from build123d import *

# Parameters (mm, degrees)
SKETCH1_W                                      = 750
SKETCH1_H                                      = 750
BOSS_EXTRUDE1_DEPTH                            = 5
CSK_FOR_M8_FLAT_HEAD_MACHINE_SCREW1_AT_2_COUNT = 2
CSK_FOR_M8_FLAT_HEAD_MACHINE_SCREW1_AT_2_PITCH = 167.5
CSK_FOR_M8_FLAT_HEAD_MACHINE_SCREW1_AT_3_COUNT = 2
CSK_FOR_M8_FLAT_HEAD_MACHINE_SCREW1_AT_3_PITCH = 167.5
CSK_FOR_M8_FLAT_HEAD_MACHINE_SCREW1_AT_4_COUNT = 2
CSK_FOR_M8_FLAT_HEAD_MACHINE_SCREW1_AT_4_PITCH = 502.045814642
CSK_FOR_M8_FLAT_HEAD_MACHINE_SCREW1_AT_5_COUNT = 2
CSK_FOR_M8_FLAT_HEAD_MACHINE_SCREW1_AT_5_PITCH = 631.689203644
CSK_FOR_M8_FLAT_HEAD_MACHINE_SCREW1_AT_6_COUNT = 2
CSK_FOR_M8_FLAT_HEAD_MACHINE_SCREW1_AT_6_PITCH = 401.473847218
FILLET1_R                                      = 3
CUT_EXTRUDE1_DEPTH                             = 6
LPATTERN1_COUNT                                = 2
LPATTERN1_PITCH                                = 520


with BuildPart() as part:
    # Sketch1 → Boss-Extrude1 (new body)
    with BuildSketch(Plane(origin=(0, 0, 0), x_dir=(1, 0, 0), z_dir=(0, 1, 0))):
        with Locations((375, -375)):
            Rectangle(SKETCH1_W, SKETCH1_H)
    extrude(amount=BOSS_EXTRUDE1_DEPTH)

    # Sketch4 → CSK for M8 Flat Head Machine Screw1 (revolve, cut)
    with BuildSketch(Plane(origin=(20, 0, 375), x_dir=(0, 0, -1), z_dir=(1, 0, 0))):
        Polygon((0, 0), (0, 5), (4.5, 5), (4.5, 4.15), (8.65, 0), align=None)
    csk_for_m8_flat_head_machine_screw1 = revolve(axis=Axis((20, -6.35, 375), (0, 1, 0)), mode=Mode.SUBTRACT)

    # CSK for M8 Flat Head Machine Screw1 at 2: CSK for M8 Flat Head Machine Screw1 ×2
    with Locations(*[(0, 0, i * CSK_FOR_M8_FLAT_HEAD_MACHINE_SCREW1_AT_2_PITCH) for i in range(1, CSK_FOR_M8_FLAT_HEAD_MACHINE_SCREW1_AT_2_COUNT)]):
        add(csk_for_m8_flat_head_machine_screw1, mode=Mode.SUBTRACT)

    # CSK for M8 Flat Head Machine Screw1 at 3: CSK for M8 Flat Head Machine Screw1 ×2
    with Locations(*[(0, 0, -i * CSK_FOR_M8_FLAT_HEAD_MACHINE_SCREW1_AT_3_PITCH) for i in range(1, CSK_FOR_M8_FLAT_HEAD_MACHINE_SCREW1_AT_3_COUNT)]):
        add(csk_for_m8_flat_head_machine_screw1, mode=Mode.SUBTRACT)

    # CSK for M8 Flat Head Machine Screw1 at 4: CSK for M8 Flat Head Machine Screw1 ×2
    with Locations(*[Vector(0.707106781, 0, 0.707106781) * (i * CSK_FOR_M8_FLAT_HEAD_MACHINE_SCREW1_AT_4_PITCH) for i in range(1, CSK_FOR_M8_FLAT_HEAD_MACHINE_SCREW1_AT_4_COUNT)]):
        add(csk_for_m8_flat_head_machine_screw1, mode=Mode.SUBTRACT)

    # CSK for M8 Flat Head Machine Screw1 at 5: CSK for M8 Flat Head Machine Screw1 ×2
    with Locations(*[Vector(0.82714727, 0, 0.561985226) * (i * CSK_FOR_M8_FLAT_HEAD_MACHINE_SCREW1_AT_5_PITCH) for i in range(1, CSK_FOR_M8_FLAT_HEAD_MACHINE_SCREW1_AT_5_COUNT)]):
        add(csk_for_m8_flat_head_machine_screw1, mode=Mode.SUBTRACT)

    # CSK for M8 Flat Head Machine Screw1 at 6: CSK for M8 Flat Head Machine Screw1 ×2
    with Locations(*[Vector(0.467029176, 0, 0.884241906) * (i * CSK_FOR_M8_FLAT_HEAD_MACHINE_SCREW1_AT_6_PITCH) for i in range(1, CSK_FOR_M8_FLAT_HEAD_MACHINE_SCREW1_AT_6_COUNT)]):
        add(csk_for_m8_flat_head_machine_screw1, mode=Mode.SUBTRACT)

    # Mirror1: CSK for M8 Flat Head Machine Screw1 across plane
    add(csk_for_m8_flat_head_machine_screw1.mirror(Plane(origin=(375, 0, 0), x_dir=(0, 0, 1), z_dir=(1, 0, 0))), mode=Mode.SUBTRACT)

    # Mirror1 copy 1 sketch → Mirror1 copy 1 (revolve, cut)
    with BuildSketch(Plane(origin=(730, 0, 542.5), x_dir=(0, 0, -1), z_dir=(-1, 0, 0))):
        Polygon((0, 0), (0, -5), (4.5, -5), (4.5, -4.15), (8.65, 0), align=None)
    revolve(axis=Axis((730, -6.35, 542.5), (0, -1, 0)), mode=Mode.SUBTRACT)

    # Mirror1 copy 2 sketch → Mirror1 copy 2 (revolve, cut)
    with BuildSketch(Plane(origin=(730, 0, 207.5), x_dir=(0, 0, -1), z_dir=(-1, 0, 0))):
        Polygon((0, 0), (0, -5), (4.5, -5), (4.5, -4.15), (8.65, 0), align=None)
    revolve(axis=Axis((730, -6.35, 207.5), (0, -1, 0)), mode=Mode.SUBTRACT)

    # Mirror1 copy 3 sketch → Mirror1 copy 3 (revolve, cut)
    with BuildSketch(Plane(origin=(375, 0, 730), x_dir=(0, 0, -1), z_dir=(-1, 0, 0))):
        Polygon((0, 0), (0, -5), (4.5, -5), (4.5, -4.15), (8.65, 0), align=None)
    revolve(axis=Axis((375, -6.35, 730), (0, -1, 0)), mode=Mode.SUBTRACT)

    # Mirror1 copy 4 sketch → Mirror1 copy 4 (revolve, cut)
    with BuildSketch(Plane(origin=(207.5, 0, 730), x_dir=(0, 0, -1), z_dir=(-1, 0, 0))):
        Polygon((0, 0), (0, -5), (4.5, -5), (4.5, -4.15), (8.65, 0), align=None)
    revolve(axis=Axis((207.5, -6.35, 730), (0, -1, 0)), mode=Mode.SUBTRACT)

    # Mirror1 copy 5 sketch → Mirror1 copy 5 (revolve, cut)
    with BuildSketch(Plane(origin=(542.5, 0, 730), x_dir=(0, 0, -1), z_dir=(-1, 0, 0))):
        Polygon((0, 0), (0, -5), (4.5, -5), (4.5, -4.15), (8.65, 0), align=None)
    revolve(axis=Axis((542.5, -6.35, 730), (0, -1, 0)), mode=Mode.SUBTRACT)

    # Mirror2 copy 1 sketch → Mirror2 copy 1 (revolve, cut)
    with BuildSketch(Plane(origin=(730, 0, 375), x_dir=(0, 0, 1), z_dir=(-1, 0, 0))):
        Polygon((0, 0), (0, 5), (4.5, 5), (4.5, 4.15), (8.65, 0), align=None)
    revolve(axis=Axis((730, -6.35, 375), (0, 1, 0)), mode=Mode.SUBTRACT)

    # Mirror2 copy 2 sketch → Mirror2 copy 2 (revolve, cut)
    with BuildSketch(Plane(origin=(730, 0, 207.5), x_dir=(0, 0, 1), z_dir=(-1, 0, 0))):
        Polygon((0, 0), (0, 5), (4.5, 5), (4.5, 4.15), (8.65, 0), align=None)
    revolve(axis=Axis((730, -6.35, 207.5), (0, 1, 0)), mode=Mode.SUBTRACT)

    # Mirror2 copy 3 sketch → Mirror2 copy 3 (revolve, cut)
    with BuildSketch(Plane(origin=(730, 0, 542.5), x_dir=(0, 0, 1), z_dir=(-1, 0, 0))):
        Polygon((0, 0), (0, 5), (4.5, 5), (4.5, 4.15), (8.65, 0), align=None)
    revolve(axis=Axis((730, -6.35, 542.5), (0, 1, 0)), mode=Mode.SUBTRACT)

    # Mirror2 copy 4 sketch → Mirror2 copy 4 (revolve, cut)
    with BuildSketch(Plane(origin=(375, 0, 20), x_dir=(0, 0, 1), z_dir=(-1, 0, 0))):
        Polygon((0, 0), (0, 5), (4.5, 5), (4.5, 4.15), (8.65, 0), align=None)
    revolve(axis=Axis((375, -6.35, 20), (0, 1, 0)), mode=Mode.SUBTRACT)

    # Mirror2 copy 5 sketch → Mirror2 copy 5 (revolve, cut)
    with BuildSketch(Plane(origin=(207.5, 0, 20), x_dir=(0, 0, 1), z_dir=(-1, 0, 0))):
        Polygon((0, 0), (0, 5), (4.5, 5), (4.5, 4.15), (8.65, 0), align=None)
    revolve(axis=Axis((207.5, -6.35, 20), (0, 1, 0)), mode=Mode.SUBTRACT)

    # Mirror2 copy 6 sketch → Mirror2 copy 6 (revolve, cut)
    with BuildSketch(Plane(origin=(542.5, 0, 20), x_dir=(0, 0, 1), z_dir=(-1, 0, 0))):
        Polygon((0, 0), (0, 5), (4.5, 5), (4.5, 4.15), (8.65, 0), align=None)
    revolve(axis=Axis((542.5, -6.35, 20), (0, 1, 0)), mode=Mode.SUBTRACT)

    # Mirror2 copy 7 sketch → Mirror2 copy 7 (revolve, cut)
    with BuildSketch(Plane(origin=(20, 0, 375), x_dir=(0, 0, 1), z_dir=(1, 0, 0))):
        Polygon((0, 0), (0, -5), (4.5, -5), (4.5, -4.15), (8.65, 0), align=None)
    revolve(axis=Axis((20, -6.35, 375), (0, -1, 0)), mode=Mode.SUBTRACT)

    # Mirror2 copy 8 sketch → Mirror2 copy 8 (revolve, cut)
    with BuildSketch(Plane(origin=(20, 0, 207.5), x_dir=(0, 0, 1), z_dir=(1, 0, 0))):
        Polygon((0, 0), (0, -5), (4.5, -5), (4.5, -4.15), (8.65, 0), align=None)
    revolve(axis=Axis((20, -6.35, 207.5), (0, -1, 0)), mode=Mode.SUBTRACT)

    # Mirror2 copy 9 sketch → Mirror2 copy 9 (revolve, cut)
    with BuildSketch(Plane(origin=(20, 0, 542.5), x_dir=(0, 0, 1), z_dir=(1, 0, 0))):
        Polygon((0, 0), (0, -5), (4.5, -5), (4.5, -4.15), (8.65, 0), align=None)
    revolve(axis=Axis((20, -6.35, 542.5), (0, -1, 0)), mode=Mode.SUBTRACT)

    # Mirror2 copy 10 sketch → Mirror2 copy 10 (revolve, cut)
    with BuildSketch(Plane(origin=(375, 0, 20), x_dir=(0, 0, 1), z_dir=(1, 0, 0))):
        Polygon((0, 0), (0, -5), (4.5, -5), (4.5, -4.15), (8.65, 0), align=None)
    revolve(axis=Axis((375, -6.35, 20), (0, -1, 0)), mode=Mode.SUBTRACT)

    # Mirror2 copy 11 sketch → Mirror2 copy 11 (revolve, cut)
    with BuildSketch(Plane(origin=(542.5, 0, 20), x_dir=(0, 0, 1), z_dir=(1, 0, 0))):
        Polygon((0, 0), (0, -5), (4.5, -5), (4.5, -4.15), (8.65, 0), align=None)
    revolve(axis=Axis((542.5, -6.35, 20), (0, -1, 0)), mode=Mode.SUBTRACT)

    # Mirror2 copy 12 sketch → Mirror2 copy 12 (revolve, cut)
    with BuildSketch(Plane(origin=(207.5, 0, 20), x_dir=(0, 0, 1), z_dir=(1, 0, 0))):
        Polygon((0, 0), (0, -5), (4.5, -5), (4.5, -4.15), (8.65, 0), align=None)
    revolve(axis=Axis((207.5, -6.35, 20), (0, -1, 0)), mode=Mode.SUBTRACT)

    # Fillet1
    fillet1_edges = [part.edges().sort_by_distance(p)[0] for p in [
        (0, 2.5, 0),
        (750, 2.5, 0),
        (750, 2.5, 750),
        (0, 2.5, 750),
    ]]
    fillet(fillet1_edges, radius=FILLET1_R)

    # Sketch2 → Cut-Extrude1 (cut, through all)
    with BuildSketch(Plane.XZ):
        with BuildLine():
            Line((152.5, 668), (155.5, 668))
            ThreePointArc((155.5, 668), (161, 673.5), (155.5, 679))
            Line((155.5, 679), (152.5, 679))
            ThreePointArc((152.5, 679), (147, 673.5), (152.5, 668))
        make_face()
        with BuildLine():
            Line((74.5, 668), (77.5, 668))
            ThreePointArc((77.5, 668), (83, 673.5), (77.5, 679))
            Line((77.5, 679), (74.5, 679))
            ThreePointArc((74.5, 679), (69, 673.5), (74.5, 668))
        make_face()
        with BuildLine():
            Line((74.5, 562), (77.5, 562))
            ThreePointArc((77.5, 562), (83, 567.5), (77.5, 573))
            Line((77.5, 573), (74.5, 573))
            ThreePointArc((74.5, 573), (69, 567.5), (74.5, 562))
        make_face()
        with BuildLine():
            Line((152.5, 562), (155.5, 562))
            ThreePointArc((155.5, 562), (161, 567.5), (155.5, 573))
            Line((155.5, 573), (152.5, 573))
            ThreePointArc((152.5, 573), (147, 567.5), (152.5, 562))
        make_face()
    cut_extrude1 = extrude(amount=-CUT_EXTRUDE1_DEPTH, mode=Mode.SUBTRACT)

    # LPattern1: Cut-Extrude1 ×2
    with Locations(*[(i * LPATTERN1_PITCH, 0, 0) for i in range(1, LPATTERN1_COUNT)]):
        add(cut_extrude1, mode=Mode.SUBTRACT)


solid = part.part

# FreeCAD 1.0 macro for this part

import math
import FreeCAD as App
import Part
import Sketcher
Q = App.Units.Quantity


def edges_at(feature, points):
    """Names of the edges that pass closest to the given points."""
    edges = feature.Shape.Edges
    near = lambda p: min(range(len(edges)), key=lambda i: edges[i].distToShape(Part.Vertex(*p))[0])
    return sorted({f"Edge{near(p) + 1}" for p in points})


def add_polygon(sketch, points):
    """Adds a closed chain of lines whose ends are joined by coincident constraints."""
    first, n = sketch.GeometryCount, len(points)
    for a, b in zip(points, points[1:] + points[:1]):
        sketch.addGeometry(Part.LineSegment(App.Vector(*a, 0), App.Vector(*b, 0)), False)
    for i in range(n):
        sketch.addConstraint(Sketcher.Constraint("Coincident", first + i, 2, first + (i + 1) % n, 1))

doc = App.newDocument("Part")
body = doc.addObject("PartDesign::Body", "Body")

# Sketch on XZ plane
sketch1 = doc.addObject("Sketcher::SketchObject", "Sketch")
body.addObject(sketch1)
sketch1.AttachmentSupport = (doc.XZ_Plane, [""])
sketch1.MapMode = "FlatFace"
add_polygon(sketch1, [(0, 0), (0, 750), (750, 750), (750, 0)])  # lines 0-3
sketch1.addConstraint([
    Sketcher.Constraint("Vertical", 0),
    Sketcher.Constraint("Horizontal", 1),
    Sketcher.Constraint("Vertical", 2),
    Sketcher.Constraint("Horizontal", 3),
    Sketcher.Constraint("Coincident", 3, 2, -1, 1),
    Sketcher.Constraint("Equal", 3, 0),
    Sketcher.Constraint("DistanceX", 1, 1, 1, 2, 750.0),
])
pad1 = doc.addObject("PartDesign::Pad", "Pad")
body.addObject(pad1)
pad1.Profile = sketch1
pad1.Length = 5
pad1.Reversed = True

# Sketch on YZ plane
sketch2 = doc.addObject("Sketcher::SketchObject", "Sketch001")
body.addObject(sketch2)
sketch2.AttachmentSupport = (doc.YZ_Plane, [""])
sketch2.MapMode = "FlatFace"
sketch2.AttachmentOffset = App.Placement(App.Vector(0, 0, 20), App.Rotation())
add_polygon(sketch2, [(5, 375), (0, 375), (0, 366.4), (4.2, 370.5), (5, 370.5)])  # lines 0-4
sketch2.addGeometry(Part.LineSegment(App.Vector(0, 375, 0), App.Vector(5, 375, 0)), True)  # axis
sketch2.addConstraint([
    Sketcher.Constraint("Horizontal", 0),
    Sketcher.Constraint("Vertical", 1),
    Sketcher.Constraint("Horizontal", 3),
    Sketcher.Constraint("Vertical", 4),
    Sketcher.Constraint("Horizontal", 5),
    Sketcher.Constraint("Coincident", 5, 1, 0, 2),
    Sketcher.Constraint("PointOnObject", 0, 2, -2),
    Sketcher.Constraint("Vertical", 3, 2, 5, 2),
    Sketcher.Constraint("DistanceX", 0, 2, 0, 1, 5.0),
    Sketcher.Constraint("Angle", 2, Q("45 deg")),
    Sketcher.Constraint("DistanceY", 4, 1, 4, 2, 4.5),
    Sketcher.Constraint("DistanceY", -1, 1, 0, 2, 375.0),
    Sketcher.Constraint("DistanceX", 3, 1, 3, 2, 0.85),
])
groove = doc.addObject("PartDesign::Groove", "Groove")
body.addObject(groove)
groove.Profile = sketch2
groove.ReferenceAxis = (sketch2, ["Axis0"])
groove.Angle = 360
doc.recompute()

linearpattern = doc.addObject("PartDesign::LinearPattern", "LinearPattern")
body.addObject(linearpattern)
linearpattern.Originals = [groove]
linearpattern.Direction = (doc.Z_Axis, [""])
linearpattern.Mode = "offset"
linearpattern.Offset = 167.5
linearpattern.Occurrences = 2
body.Tip = linearpattern
doc.recompute()

linearpattern2 = doc.addObject("PartDesign::LinearPattern", "LinearPattern001")
body.addObject(linearpattern2)
linearpattern2.Originals = [groove]
linearpattern2.Direction = (doc.Z_Axis, [""])
linearpattern2.Mode = "offset"
linearpattern2.Offset = 167.5
linearpattern2.Occurrences = 2
linearpattern2.Reversed = True
body.Tip = linearpattern2
doc.recompute()

datumline = doc.addObject("PartDesign::Line", "DatumLine")
body.addObject(datumline)
datumline.Placement = App.Placement(App.Vector(0, 0, 0), App.Rotation(App.Vector(0, 0, 1), App.Vector(0.707106781, 0, 0.707106781)))
linearpattern3 = doc.addObject("PartDesign::LinearPattern", "LinearPattern002")
body.addObject(linearpattern3)
linearpattern3.Originals = [groove]
linearpattern3.Direction = (datumline, [""])
linearpattern3.Mode = "offset"
linearpattern3.Offset = 502.045815
linearpattern3.Occurrences = 2
body.Tip = linearpattern3
doc.recompute()

datumline2 = doc.addObject("PartDesign::Line", "DatumLine001")
body.addObject(datumline2)
datumline2.Placement = App.Placement(App.Vector(0, 0, 0), App.Rotation(App.Vector(0, 0, 1), App.Vector(0.82714727, 0, 0.561985226)))
linearpattern4 = doc.addObject("PartDesign::LinearPattern", "LinearPattern003")
body.addObject(linearpattern4)
linearpattern4.Originals = [groove]
linearpattern4.Direction = (datumline2, [""])
linearpattern4.Mode = "offset"
linearpattern4.Offset = 631.689204
linearpattern4.Occurrences = 2
body.Tip = linearpattern4
doc.recompute()

datumline3 = doc.addObject("PartDesign::Line", "DatumLine002")
body.addObject(datumline3)
datumline3.Placement = App.Placement(App.Vector(0, 0, 0), App.Rotation(App.Vector(0, 0, 1), App.Vector(0.467029176, 0, 0.884241906)))
linearpattern5 = doc.addObject("PartDesign::LinearPattern", "LinearPattern004")
body.addObject(linearpattern5)
linearpattern5.Originals = [groove]
linearpattern5.Direction = (datumline3, [""])
linearpattern5.Mode = "offset"
linearpattern5.Offset = 401.473847
linearpattern5.Occurrences = 2
body.Tip = linearpattern5
doc.recompute()

datumplane = doc.addObject("PartDesign::Plane", "DatumPlane")
body.addObject(datumplane)
datumplane.AttachmentSupport = (doc.YZ_Plane, [""])
datumplane.MapMode = "FlatFace"
datumplane.AttachmentOffset = App.Placement(App.Vector(0, 0, 375), App.Rotation())
mirrored = doc.addObject("PartDesign::Mirrored", "Mirrored")
body.addObject(mirrored)
mirrored.Originals = [groove]
mirrored.MirrorPlane = (datumplane, [""])
body.Tip = mirrored

# Sketch on YZ plane
sketch3 = doc.addObject("Sketcher::SketchObject", "Sketch002")
body.addObject(sketch3)
sketch3.AttachmentSupport = (doc.YZ_Plane, [""])
sketch3.MapMode = "FlatFace"
sketch3.AttachmentOffset = App.Placement(App.Vector(0, 0, 730), App.Rotation())
add_polygon(sketch3, [(0, 542.5), (5, 542.5), (5, 538), (4.2, 538), (0, 533.9)])  # lines 0-4
sketch3.addGeometry(Part.LineSegment(App.Vector(5, 542.5, 0), App.Vector(0, 542.5, 0)), True)  # axis
sketch3.addConstraint([
    Sketcher.Constraint("Horizontal", 0),
    Sketcher.Constraint("Vertical", 1),
    Sketcher.Constraint("Horizontal", 2),
    Sketcher.Constraint("Vertical", 4),
    Sketcher.Constraint("Horizontal", 5),
    Sketcher.Constraint("Coincident", 5, 1, 0, 2),
    Sketcher.Constraint("PointOnObject", 3, 2, -2),
    Sketcher.Constraint("PointOnObject", 5, 2, -2),
    Sketcher.Constraint("DistanceX", 0, 1, 0, 2, 5.0),
    Sketcher.Constraint("Angle", 3, Q("-135 deg")),
    Sketcher.Constraint("DistanceY", 1, 2, 1, 1, 4.5),
    Sketcher.Constraint("DistanceY", -1, 1, 1, 2, 538.0),
    Sketcher.Constraint("DistanceX", 2, 2, 2, 1, 0.85),
])
groove2 = doc.addObject("PartDesign::Groove", "Groove001")
body.addObject(groove2)
groove2.Profile = sketch3
groove2.ReferenceAxis = (sketch3, ["Axis0"])
groove2.Angle = 360

# Sketch on YZ plane
sketch4 = doc.addObject("Sketcher::SketchObject", "Sketch003")
body.addObject(sketch4)
sketch4.AttachmentSupport = (doc.YZ_Plane, [""])
sketch4.MapMode = "FlatFace"
sketch4.AttachmentOffset = App.Placement(App.Vector(0, 0, 730), App.Rotation())
add_polygon(sketch4, [(0, 207.5), (5, 207.5), (5, 203), (4.2, 203), (0, 198.8)])  # lines 0-4
sketch4.addGeometry(Part.LineSegment(App.Vector(5, 207.5, 0), App.Vector(0, 207.5, 0)), True)  # axis
sketch4.addConstraint([
    Sketcher.Constraint("Horizontal", 0),
    Sketcher.Constraint("Vertical", 1),
    Sketcher.Constraint("Horizontal", 2),
    Sketcher.Constraint("Vertical", 4),
    Sketcher.Constraint("Horizontal", 5),
    Sketcher.Constraint("Coincident", 5, 1, 0, 2),
    Sketcher.Constraint("PointOnObject", 3, 2, -2),
    Sketcher.Constraint("PointOnObject", 5, 2, -2),
    Sketcher.Constraint("DistanceX", 0, 1, 0, 2, 5.0),
    Sketcher.Constraint("Angle", 3, Q("-135 deg")),
    Sketcher.Constraint("DistanceY", 1, 2, 1, 1, 4.5),
    Sketcher.Constraint("DistanceY", -1, 1, 1, 2, 203.0),
    Sketcher.Constraint("DistanceX", 2, 2, 2, 1, 0.85),
])
groove3 = doc.addObject("PartDesign::Groove", "Groove002")
body.addObject(groove3)
groove3.Profile = sketch4
groove3.ReferenceAxis = (sketch4, ["Axis0"])
groove3.Angle = 360

# Sketch on YZ plane
sketch5 = doc.addObject("Sketcher::SketchObject", "Sketch004")
body.addObject(sketch5)
sketch5.AttachmentSupport = (doc.YZ_Plane, [""])
sketch5.MapMode = "FlatFace"
sketch5.AttachmentOffset = App.Placement(App.Vector(0, 0, 375), App.Rotation())
add_polygon(sketch5, [(0, 730), (5, 730), (5, 725.5), (4.2, 725.5), (0, 721.4)])  # lines 0-4
sketch5.addGeometry(Part.LineSegment(App.Vector(5, 730, 0), App.Vector(0, 730, 0)), True)  # axis
sketch5.addConstraint([
    Sketcher.Constraint("Horizontal", 0),
    Sketcher.Constraint("Vertical", 1),
    Sketcher.Constraint("Horizontal", 2),
    Sketcher.Constraint("Vertical", 4),
    Sketcher.Constraint("Horizontal", 5),
    Sketcher.Constraint("Coincident", 5, 1, 0, 2),
    Sketcher.Constraint("PointOnObject", 3, 2, -2),
    Sketcher.Constraint("PointOnObject", 5, 2, -2),
    Sketcher.Constraint("DistanceX", 0, 1, 0, 2, 5.0),
    Sketcher.Constraint("Angle", 3, Q("-135 deg")),
    Sketcher.Constraint("DistanceY", 1, 2, 1, 1, 4.5),
    Sketcher.Constraint("DistanceY", -1, 1, 0, 2, 730.0),
    Sketcher.Constraint("DistanceX", 2, 2, 2, 1, 0.85),
])
groove4 = doc.addObject("PartDesign::Groove", "Groove003")
body.addObject(groove4)
groove4.Profile = sketch5
groove4.ReferenceAxis = (sketch5, ["Axis0"])
groove4.Angle = 360

# Sketch on YZ plane
sketch6 = doc.addObject("Sketcher::SketchObject", "Sketch005")
body.addObject(sketch6)
sketch6.AttachmentSupport = (doc.YZ_Plane, [""])
sketch6.MapMode = "FlatFace"
sketch6.AttachmentOffset = App.Placement(App.Vector(0, 0, 207.5), App.Rotation())
add_polygon(sketch6, [(0, 730), (5, 730), (5, 725.5), (4.2, 725.5), (0, 721.4)])  # lines 0-4
sketch6.addGeometry(Part.LineSegment(App.Vector(5, 730, 0), App.Vector(0, 730, 0)), True)  # axis
sketch6.addConstraint([
    Sketcher.Constraint("Horizontal", 0),
    Sketcher.Constraint("Vertical", 1),
    Sketcher.Constraint("Horizontal", 2),
    Sketcher.Constraint("Vertical", 4),
    Sketcher.Constraint("Horizontal", 5),
    Sketcher.Constraint("Coincident", 5, 1, 0, 2),
    Sketcher.Constraint("PointOnObject", 3, 2, -2),
    Sketcher.Constraint("PointOnObject", 5, 2, -2),
    Sketcher.Constraint("DistanceX", 0, 1, 0, 2, 5.0),
    Sketcher.Constraint("Angle", 3, Q("-135 deg")),
    Sketcher.Constraint("DistanceY", 1, 2, 1, 1, 4.5),
    Sketcher.Constraint("DistanceY", -1, 1, 0, 2, 730.0),
    Sketcher.Constraint("DistanceX", 2, 2, 2, 1, 0.85),
])
groove5 = doc.addObject("PartDesign::Groove", "Groove004")
body.addObject(groove5)
groove5.Profile = sketch6
groove5.ReferenceAxis = (sketch6, ["Axis0"])
groove5.Angle = 360

# Sketch on YZ plane
sketch7 = doc.addObject("Sketcher::SketchObject", "Sketch006")
body.addObject(sketch7)
sketch7.AttachmentSupport = (doc.YZ_Plane, [""])
sketch7.MapMode = "FlatFace"
sketch7.AttachmentOffset = App.Placement(App.Vector(0, 0, 542.5), App.Rotation())
add_polygon(sketch7, [(0, 730), (5, 730), (5, 725.5), (4.2, 725.5), (0, 721.4)])  # lines 0-4
sketch7.addGeometry(Part.LineSegment(App.Vector(5, 730, 0), App.Vector(0, 730, 0)), True)  # axis
sketch7.addConstraint([
    Sketcher.Constraint("Horizontal", 0),
    Sketcher.Constraint("Vertical", 1),
    Sketcher.Constraint("Horizontal", 2),
    Sketcher.Constraint("Vertical", 4),
    Sketcher.Constraint("Horizontal", 5),
    Sketcher.Constraint("Coincident", 5, 1, 0, 2),
    Sketcher.Constraint("PointOnObject", 3, 2, -2),
    Sketcher.Constraint("PointOnObject", 5, 2, -2),
    Sketcher.Constraint("DistanceX", 0, 1, 0, 2, 5.0),
    Sketcher.Constraint("Angle", 3, Q("-135 deg")),
    Sketcher.Constraint("DistanceY", 1, 2, 1, 1, 4.5),
    Sketcher.Constraint("DistanceY", -1, 1, 0, 2, 730.0),
    Sketcher.Constraint("DistanceX", 2, 2, 2, 1, 0.85),
])
groove6 = doc.addObject("PartDesign::Groove", "Groove005")
body.addObject(groove6)
groove6.Profile = sketch7
groove6.ReferenceAxis = (sketch7, ["Axis0"])
groove6.Angle = 360

# Sketch on YZ plane
sketch8 = doc.addObject("Sketcher::SketchObject", "Sketch007")
body.addObject(sketch8)
sketch8.AttachmentSupport = (doc.YZ_Plane, [""])
sketch8.MapMode = "FlatFace"
sketch8.AttachmentOffset = App.Placement(App.Vector(0, 0, 730), App.Rotation())
add_polygon(sketch8, [(5, 375), (0, 375), (0, 383.6), (4.2, 379.5), (5, 379.5)])  # lines 0-4
sketch8.addGeometry(Part.LineSegment(App.Vector(0, 375, 0), App.Vector(5, 375, 0)), True)  # axis
sketch8.addConstraint([
    Sketcher.Constraint("Horizontal", 0),
    Sketcher.Constraint("Vertical", 1),
    Sketcher.Constraint("Horizontal", 3),
    Sketcher.Constraint("Vertical", 4),
    Sketcher.Constraint("Horizontal", 5),
    Sketcher.Constraint("Coincident", 5, 1, 0, 2),
    Sketcher.Constraint("PointOnObject", 0, 2, -2),
    Sketcher.Constraint("Vertical", 3, 2, 5, 2),
    Sketcher.Constraint("DistanceX", 0, 2, 0, 1, 5.0),
    Sketcher.Constraint("Angle", 2, Q("-45 deg")),
    Sketcher.Constraint("DistanceY", 4, 2, 4, 1, 4.5),
    Sketcher.Constraint("DistanceY", -1, 1, 0, 2, 375.0),
    Sketcher.Constraint("DistanceX", 3, 1, 3, 2, 0.85),
])
groove7 = doc.addObject("PartDesign::Groove", "Groove006")
body.addObject(groove7)
groove7.Profile = sketch8
groove7.ReferenceAxis = (sketch8, ["Axis0"])
groove7.Angle = 360

# Sketch on YZ plane
sketch9 = doc.addObject("Sketcher::SketchObject", "Sketch008")
body.addObject(sketch9)
sketch9.AttachmentSupport = (doc.YZ_Plane, [""])
sketch9.MapMode = "FlatFace"
sketch9.AttachmentOffset = App.Placement(App.Vector(0, 0, 730), App.Rotation())
add_polygon(sketch9, [(5, 207.5), (0, 207.5), (0, 216.2), (4.2, 212), (5, 212)])  # lines 0-4
sketch9.addGeometry(Part.LineSegment(App.Vector(0, 207.5, 0), App.Vector(5, 207.5, 0)), True)  # axis
sketch9.addConstraint([
    Sketcher.Constraint("Horizontal", 0),
    Sketcher.Constraint("Vertical", 1),
    Sketcher.Constraint("Horizontal", 3),
    Sketcher.Constraint("Vertical", 4),
    Sketcher.Constraint("Horizontal", 5),
    Sketcher.Constraint("Coincident", 5, 1, 0, 2),
    Sketcher.Constraint("PointOnObject", 0, 2, -2),
    Sketcher.Constraint("Vertical", 3, 2, 5, 2),
    Sketcher.Constraint("DistanceX", 0, 2, 0, 1, 5.0),
    Sketcher.Constraint("Angle", 2, Q("-45 deg")),
    Sketcher.Constraint("DistanceY", 4, 2, 4, 1, 4.5),
    Sketcher.Constraint("DistanceY", -1, 1, 2, 2, 212.0),
    Sketcher.Constraint("DistanceX", 3, 1, 3, 2, 0.85),
])
groove8 = doc.addObject("PartDesign::Groove", "Groove007")
body.addObject(groove8)
groove8.Profile = sketch9
groove8.ReferenceAxis = (sketch9, ["Axis0"])
groove8.Angle = 360

# Sketch on YZ plane
sketch10 = doc.addObject("Sketcher::SketchObject", "Sketch009")
body.addObject(sketch10)
sketch10.AttachmentSupport = (doc.YZ_Plane, [""])
sketch10.MapMode = "FlatFace"
sketch10.AttachmentOffset = App.Placement(App.Vector(0, 0, 730), App.Rotation())
add_polygon(sketch10, [(5, 542.5), (0, 542.5), (0, 551.1), (4.2, 547), (5, 547)])  # lines 0-4
sketch10.addGeometry(Part.LineSegment(App.Vector(0, 542.5, 0), App.Vector(5, 542.5, 0)), True)  # axis
sketch10.addConstraint([
    Sketcher.Constraint("Horizontal", 0),
    Sketcher.Constraint("Vertical", 1),
    Sketcher.Constraint("Horizontal", 3),
    Sketcher.Constraint("Vertical", 4),
    Sketcher.Constraint("Horizontal", 5),
    Sketcher.Constraint("Coincident", 5, 1, 0, 2),
    Sketcher.Constraint("PointOnObject", 0, 2, -2),
    Sketcher.Constraint("Vertical", 3, 2, 5, 2),
    Sketcher.Constraint("DistanceX", 0, 2, 0, 1, 5.0),
    Sketcher.Constraint("Angle", 2, Q("-45 deg")),
    Sketcher.Constraint("DistanceY", 4, 2, 4, 1, 4.5),
    Sketcher.Constraint("DistanceY", -1, 1, 2, 2, 547.0),
    Sketcher.Constraint("DistanceX", 3, 1, 3, 2, 0.85),
])
groove9 = doc.addObject("PartDesign::Groove", "Groove008")
body.addObject(groove9)
groove9.Profile = sketch10
groove9.ReferenceAxis = (sketch10, ["Axis0"])
groove9.Angle = 360

# Sketch on YZ plane
sketch11 = doc.addObject("Sketcher::SketchObject", "Sketch010")
body.addObject(sketch11)
sketch11.AttachmentSupport = (doc.YZ_Plane, [""])
sketch11.MapMode = "FlatFace"
sketch11.AttachmentOffset = App.Placement(App.Vector(0, 0, 375), App.Rotation())
add_polygon(sketch11, [(5, 20), (0, 20), (0, 28.6), (4.2, 24.5), (5, 24.5)])  # lines 0-4
sketch11.addGeometry(Part.LineSegment(App.Vector(0, 20, 0), App.Vector(5, 20, 0)), True)  # axis
sketch11.addConstraint([
    Sketcher.Constraint("Horizontal", 0),
    Sketcher.Constraint("Vertical", 1),
    Sketcher.Constraint("Horizontal", 3),
    Sketcher.Constraint("Vertical", 4),
    Sketcher.Constraint("Horizontal", 5),
    Sketcher.Constraint("Coincident", 5, 1, 0, 2),
    Sketcher.Constraint("PointOnObject", 0, 2, -2),
    Sketcher.Constraint("Vertical", 3, 2, 5, 2),
    Sketcher.Constraint("DistanceX", 0, 2, 0, 1, 5.0),
    Sketcher.Constraint("Angle", 2, Q("-45 deg")),
    Sketcher.Constraint("DistanceY", 4, 2, 4, 1, 4.5),
    Sketcher.Constraint("DistanceY", -1, 1, 0, 2, 20.0),
    Sketcher.Constraint("DistanceX", 3, 1, 3, 2, 0.85),
])
groove10 = doc.addObject("PartDesign::Groove", "Groove009")
body.addObject(groove10)
groove10.Profile = sketch11
groove10.ReferenceAxis = (sketch11, ["Axis0"])
groove10.Angle = 360

# Sketch on YZ plane
sketch12 = doc.addObject("Sketcher::SketchObject", "Sketch011")
body.addObject(sketch12)
sketch12.AttachmentSupport = (doc.YZ_Plane, [""])
sketch12.MapMode = "FlatFace"
sketch12.AttachmentOffset = App.Placement(App.Vector(0, 0, 207.5), App.Rotation())
add_polygon(sketch12, [(5, 20), (0, 20), (0, 28.6), (4.2, 24.5), (5, 24.5)])  # lines 0-4
sketch12.addGeometry(Part.LineSegment(App.Vector(0, 20, 0), App.Vector(5, 20, 0)), True)  # axis
sketch12.addConstraint([
    Sketcher.Constraint("Horizontal", 0),
    Sketcher.Constraint("Vertical", 1),
    Sketcher.Constraint("Horizontal", 3),
    Sketcher.Constraint("Vertical", 4),
    Sketcher.Constraint("Horizontal", 5),
    Sketcher.Constraint("Coincident", 5, 1, 0, 2),
    Sketcher.Constraint("PointOnObject", 0, 2, -2),
    Sketcher.Constraint("Vertical", 3, 2, 5, 2),
    Sketcher.Constraint("DistanceX", 0, 2, 0, 1, 5.0),
    Sketcher.Constraint("Angle", 2, Q("-45 deg")),
    Sketcher.Constraint("DistanceY", 4, 2, 4, 1, 4.5),
    Sketcher.Constraint("DistanceY", -1, 1, 0, 2, 20.0),
    Sketcher.Constraint("DistanceX", 3, 1, 3, 2, 0.85),
])
groove11 = doc.addObject("PartDesign::Groove", "Groove010")
body.addObject(groove11)
groove11.Profile = sketch12
groove11.ReferenceAxis = (sketch12, ["Axis0"])
groove11.Angle = 360

# Sketch on YZ plane
sketch13 = doc.addObject("Sketcher::SketchObject", "Sketch012")
body.addObject(sketch13)
sketch13.AttachmentSupport = (doc.YZ_Plane, [""])
sketch13.MapMode = "FlatFace"
sketch13.AttachmentOffset = App.Placement(App.Vector(0, 0, 542.5), App.Rotation())
add_polygon(sketch13, [(5, 20), (0, 20), (0, 28.6), (4.2, 24.5), (5, 24.5)])  # lines 0-4
sketch13.addGeometry(Part.LineSegment(App.Vector(0, 20, 0), App.Vector(5, 20, 0)), True)  # axis
sketch13.addConstraint([
    Sketcher.Constraint("Horizontal", 0),
    Sketcher.Constraint("Vertical", 1),
    Sketcher.Constraint("Horizontal", 3),
    Sketcher.Constraint("Vertical", 4),
    Sketcher.Constraint("Horizontal", 5),
    Sketcher.Constraint("Coincident", 5, 1, 0, 2),
    Sketcher.Constraint("PointOnObject", 0, 2, -2),
    Sketcher.Constraint("Vertical", 3, 2, 5, 2),
    Sketcher.Constraint("DistanceX", 0, 2, 0, 1, 5.0),
    Sketcher.Constraint("Angle", 2, Q("-45 deg")),
    Sketcher.Constraint("DistanceY", 4, 2, 4, 1, 4.5),
    Sketcher.Constraint("DistanceY", -1, 1, 0, 2, 20.0),
    Sketcher.Constraint("DistanceX", 3, 1, 3, 2, 0.85),
])
groove12 = doc.addObject("PartDesign::Groove", "Groove011")
body.addObject(groove12)
groove12.Profile = sketch13
groove12.ReferenceAxis = (sketch13, ["Axis0"])
groove12.Angle = 360

# Sketch on YZ plane
sketch14 = doc.addObject("Sketcher::SketchObject", "Sketch013")
body.addObject(sketch14)
sketch14.AttachmentSupport = (doc.YZ_Plane, [""])
sketch14.MapMode = "FlatFace"
sketch14.AttachmentOffset = App.Placement(App.Vector(0, 0, 20), App.Rotation())
add_polygon(sketch14, [(0, 375), (5, 375), (5, 379.5), (4.2, 379.5), (0, 383.6)])  # lines 0-4
sketch14.addGeometry(Part.LineSegment(App.Vector(5, 375, 0), App.Vector(0, 375, 0)), True)  # axis
sketch14.addConstraint([
    Sketcher.Constraint("Horizontal", 0),
    Sketcher.Constraint("Vertical", 1),
    Sketcher.Constraint("Horizontal", 2),
    Sketcher.Constraint("Vertical", 4),
    Sketcher.Constraint("Horizontal", 5),
    Sketcher.Constraint("Coincident", 5, 1, 0, 2),
    Sketcher.Constraint("PointOnObject", 3, 2, -2),
    Sketcher.Constraint("PointOnObject", 5, 2, -2),
    Sketcher.Constraint("DistanceX", 0, 1, 0, 2, 5.0),
    Sketcher.Constraint("Angle", 3, Q("135 deg")),
    Sketcher.Constraint("DistanceY", 1, 1, 1, 2, 4.5),
    Sketcher.Constraint("DistanceY", -1, 1, 0, 2, 375.0),
    Sketcher.Constraint("DistanceX", 2, 2, 2, 1, 0.85),
])
groove13 = doc.addObject("PartDesign::Groove", "Groove012")
body.addObject(groove13)
groove13.Profile = sketch14
groove13.ReferenceAxis = (sketch14, ["Axis0"])
groove13.Angle = 360

# Sketch on YZ plane
sketch15 = doc.addObject("Sketcher::SketchObject", "Sketch014")
body.addObject(sketch15)
sketch15.AttachmentSupport = (doc.YZ_Plane, [""])
sketch15.MapMode = "FlatFace"
sketch15.AttachmentOffset = App.Placement(App.Vector(0, 0, 20), App.Rotation())
add_polygon(sketch15, [(0, 207.5), (5, 207.5), (5, 212), (4.2, 212), (0, 216.2)])  # lines 0-4
sketch15.addGeometry(Part.LineSegment(App.Vector(5, 207.5, 0), App.Vector(0, 207.5, 0)), True)  # axis
sketch15.addConstraint([
    Sketcher.Constraint("Horizontal", 0),
    Sketcher.Constraint("Vertical", 1),
    Sketcher.Constraint("Horizontal", 2),
    Sketcher.Constraint("Vertical", 4),
    Sketcher.Constraint("Horizontal", 5),
    Sketcher.Constraint("Coincident", 5, 1, 0, 2),
    Sketcher.Constraint("PointOnObject", 3, 2, -2),
    Sketcher.Constraint("PointOnObject", 5, 2, -2),
    Sketcher.Constraint("DistanceX", 0, 1, 0, 2, 5.0),
    Sketcher.Constraint("Angle", 3, Q("135 deg")),
    Sketcher.Constraint("DistanceY", 1, 1, 1, 2, 4.5),
    Sketcher.Constraint("DistanceY", -1, 1, 1, 2, 212.0),
    Sketcher.Constraint("DistanceX", 2, 2, 2, 1, 0.85),
])
groove14 = doc.addObject("PartDesign::Groove", "Groove013")
body.addObject(groove14)
groove14.Profile = sketch15
groove14.ReferenceAxis = (sketch15, ["Axis0"])
groove14.Angle = 360

# Sketch on YZ plane
sketch16 = doc.addObject("Sketcher::SketchObject", "Sketch015")
body.addObject(sketch16)
sketch16.AttachmentSupport = (doc.YZ_Plane, [""])
sketch16.MapMode = "FlatFace"
sketch16.AttachmentOffset = App.Placement(App.Vector(0, 0, 20), App.Rotation())
add_polygon(sketch16, [(0, 542.5), (5, 542.5), (5, 547), (4.2, 547), (0, 551.1)])  # lines 0-4
sketch16.addGeometry(Part.LineSegment(App.Vector(5, 542.5, 0), App.Vector(0, 542.5, 0)), True)  # axis
sketch16.addConstraint([
    Sketcher.Constraint("Horizontal", 0),
    Sketcher.Constraint("Vertical", 1),
    Sketcher.Constraint("Horizontal", 2),
    Sketcher.Constraint("Vertical", 4),
    Sketcher.Constraint("Horizontal", 5),
    Sketcher.Constraint("Coincident", 5, 1, 0, 2),
    Sketcher.Constraint("PointOnObject", 3, 2, -2),
    Sketcher.Constraint("PointOnObject", 5, 2, -2),
    Sketcher.Constraint("DistanceX", 0, 1, 0, 2, 5.0),
    Sketcher.Constraint("Angle", 3, Q("135 deg")),
    Sketcher.Constraint("DistanceY", 1, 1, 1, 2, 4.5),
    Sketcher.Constraint("DistanceY", -1, 1, 1, 2, 547.0),
    Sketcher.Constraint("DistanceX", 2, 2, 2, 1, 0.85),
])
groove15 = doc.addObject("PartDesign::Groove", "Groove014")
body.addObject(groove15)
groove15.Profile = sketch16
groove15.ReferenceAxis = (sketch16, ["Axis0"])
groove15.Angle = 360

# Sketch on YZ plane
sketch17 = doc.addObject("Sketcher::SketchObject", "Sketch016")
body.addObject(sketch17)
sketch17.AttachmentSupport = (doc.YZ_Plane, [""])
sketch17.MapMode = "FlatFace"
sketch17.AttachmentOffset = App.Placement(App.Vector(0, 0, 375), App.Rotation())
add_polygon(sketch17, [(0, 20), (5, 20), (5, 24.5), (4.2, 24.5), (0, 28.6)])  # lines 0-4
sketch17.addGeometry(Part.LineSegment(App.Vector(5, 20, 0), App.Vector(0, 20, 0)), True)  # axis
sketch17.addConstraint([
    Sketcher.Constraint("Horizontal", 0),
    Sketcher.Constraint("Vertical", 1),
    Sketcher.Constraint("Horizontal", 2),
    Sketcher.Constraint("Vertical", 4),
    Sketcher.Constraint("Horizontal", 5),
    Sketcher.Constraint("Coincident", 5, 1, 0, 2),
    Sketcher.Constraint("PointOnObject", 3, 2, -2),
    Sketcher.Constraint("PointOnObject", 5, 2, -2),
    Sketcher.Constraint("DistanceX", 0, 1, 0, 2, 5.0),
    Sketcher.Constraint("Angle", 3, Q("135 deg")),
    Sketcher.Constraint("DistanceY", 1, 1, 1, 2, 4.5),
    Sketcher.Constraint("DistanceY", -1, 1, 0, 2, 20.0),
    Sketcher.Constraint("DistanceX", 2, 2, 2, 1, 0.85),
])
groove16 = doc.addObject("PartDesign::Groove", "Groove015")
body.addObject(groove16)
groove16.Profile = sketch17
groove16.ReferenceAxis = (sketch17, ["Axis0"])
groove16.Angle = 360

# Sketch on YZ plane
sketch18 = doc.addObject("Sketcher::SketchObject", "Sketch017")
body.addObject(sketch18)
sketch18.AttachmentSupport = (doc.YZ_Plane, [""])
sketch18.MapMode = "FlatFace"
sketch18.AttachmentOffset = App.Placement(App.Vector(0, 0, 542.5), App.Rotation())
add_polygon(sketch18, [(0, 20), (5, 20), (5, 24.5), (4.2, 24.5), (0, 28.6)])  # lines 0-4
sketch18.addGeometry(Part.LineSegment(App.Vector(5, 20, 0), App.Vector(0, 20, 0)), True)  # axis
sketch18.addConstraint([
    Sketcher.Constraint("Horizontal", 0),
    Sketcher.Constraint("Vertical", 1),
    Sketcher.Constraint("Horizontal", 2),
    Sketcher.Constraint("Vertical", 4),
    Sketcher.Constraint("Horizontal", 5),
    Sketcher.Constraint("Coincident", 5, 1, 0, 2),
    Sketcher.Constraint("PointOnObject", 3, 2, -2),
    Sketcher.Constraint("PointOnObject", 5, 2, -2),
    Sketcher.Constraint("DistanceX", 0, 1, 0, 2, 5.0),
    Sketcher.Constraint("Angle", 3, Q("135 deg")),
    Sketcher.Constraint("DistanceY", 1, 1, 1, 2, 4.5),
    Sketcher.Constraint("DistanceY", -1, 1, 0, 2, 20.0),
    Sketcher.Constraint("DistanceX", 2, 2, 2, 1, 0.85),
])
groove17 = doc.addObject("PartDesign::Groove", "Groove016")
body.addObject(groove17)
groove17.Profile = sketch18
groove17.ReferenceAxis = (sketch18, ["Axis0"])
groove17.Angle = 360

# Sketch on YZ plane
sketch19 = doc.addObject("Sketcher::SketchObject", "Sketch018")
body.addObject(sketch19)
sketch19.AttachmentSupport = (doc.YZ_Plane, [""])
sketch19.MapMode = "FlatFace"
sketch19.AttachmentOffset = App.Placement(App.Vector(0, 0, 207.5), App.Rotation())
add_polygon(sketch19, [(0, 20), (5, 20), (5, 24.5), (4.2, 24.5), (0, 28.6)])  # lines 0-4
sketch19.addGeometry(Part.LineSegment(App.Vector(5, 20, 0), App.Vector(0, 20, 0)), True)  # axis
sketch19.addConstraint([
    Sketcher.Constraint("Horizontal", 0),
    Sketcher.Constraint("Vertical", 1),
    Sketcher.Constraint("Horizontal", 2),
    Sketcher.Constraint("Vertical", 4),
    Sketcher.Constraint("Horizontal", 5),
    Sketcher.Constraint("Coincident", 5, 1, 0, 2),
    Sketcher.Constraint("PointOnObject", 3, 2, -2),
    Sketcher.Constraint("PointOnObject", 5, 2, -2),
    Sketcher.Constraint("DistanceX", 0, 1, 0, 2, 5.0),
    Sketcher.Constraint("Angle", 3, Q("135 deg")),
    Sketcher.Constraint("DistanceY", 1, 1, 1, 2, 4.5),
    Sketcher.Constraint("DistanceY", -1, 1, 0, 2, 20.0),
    Sketcher.Constraint("DistanceX", 2, 2, 2, 1, 0.85),
])
groove18 = doc.addObject("PartDesign::Groove", "Groove017")
body.addObject(groove18)
groove18.Profile = sketch19
groove18.ReferenceAxis = (sketch19, ["Axis0"])
groove18.Angle = 360
doc.recompute()

fillet = doc.addObject("PartDesign::Fillet", "Fillet")
body.addObject(fillet)
fillet.Base = (groove18, edges_at(groove18, [
    (0, 2.5, 0),
    (750, 2.5, 0),
    (750, 2.5, 750),
    (0, 2.5, 750),
]))
fillet.Radius = 3

# Sketch on XZ plane
sketch20 = doc.addObject("Sketcher::SketchObject", "Sketch019")
body.addObject(sketch20)
sketch20.AttachmentSupport = (doc.XZ_Plane, [""])
sketch20.MapMode = "FlatFace"
sketch20.addGeometry([
    Part.LineSegment(App.Vector(152.5, 668, 0), App.Vector(155.5, 668, 0)),  # 0
    Part.ArcOfCircle(Part.Circle(App.Vector(155.5, 673.5, 0), App.Vector(0, 0, 1), 5.5), math.radians(-90), math.radians(90)),  # 1
    Part.LineSegment(App.Vector(155.5, 679, 0), App.Vector(152.5, 679, 0)),  # 2
    Part.ArcOfCircle(Part.Circle(App.Vector(152.5, 673.5, 0), App.Vector(0, 0, 1), 5.5), math.radians(90), math.radians(270)),  # 3
    Part.LineSegment(App.Vector(74.5, 668, 0), App.Vector(77.5, 668, 0)),  # 4
    Part.ArcOfCircle(Part.Circle(App.Vector(77.5, 673.5, 0), App.Vector(0, 0, 1), 5.5), math.radians(-90), math.radians(90)),  # 5
    Part.LineSegment(App.Vector(77.5, 679, 0), App.Vector(74.5, 679, 0)),  # 6
    Part.ArcOfCircle(Part.Circle(App.Vector(74.5, 673.5, 0), App.Vector(0, 0, 1), 5.5), math.radians(90), math.radians(270)),  # 7
    Part.LineSegment(App.Vector(74.5, 562, 0), App.Vector(77.5, 562, 0)),  # 8
    Part.ArcOfCircle(Part.Circle(App.Vector(77.5, 567.5, 0), App.Vector(0, 0, 1), 5.5), math.radians(-90), math.radians(90)),  # 9
    Part.LineSegment(App.Vector(77.5, 573, 0), App.Vector(74.5, 573, 0)),  # 10
    Part.ArcOfCircle(Part.Circle(App.Vector(74.5, 567.5, 0), App.Vector(0, 0, 1), 5.5), math.radians(90), math.radians(270)),  # 11
    Part.LineSegment(App.Vector(152.5, 562, 0), App.Vector(155.5, 562, 0)),  # 12
    Part.ArcOfCircle(Part.Circle(App.Vector(155.5, 567.5, 0), App.Vector(0, 0, 1), 5.5), math.radians(-90), math.radians(90)),  # 13
    Part.LineSegment(App.Vector(155.5, 573, 0), App.Vector(152.5, 573, 0)),  # 14
    Part.ArcOfCircle(Part.Circle(App.Vector(152.5, 567.5, 0), App.Vector(0, 0, 1), 5.5), math.radians(90), math.radians(270)),  # 15
], False)
sketch20.addConstraint([
    Sketcher.Constraint("Tangent", 0, 2, 1, 1),
    Sketcher.Constraint("Tangent", 1, 2, 2, 1),
    Sketcher.Constraint("Tangent", 2, 2, 3, 1),
    Sketcher.Constraint("Tangent", 3, 2, 0, 1),
    Sketcher.Constraint("Tangent", 4, 2, 5, 1),
    Sketcher.Constraint("Tangent", 5, 2, 6, 1),
    Sketcher.Constraint("Tangent", 6, 2, 7, 1),
    Sketcher.Constraint("Tangent", 7, 2, 4, 1),
    Sketcher.Constraint("Tangent", 8, 2, 9, 1),
    Sketcher.Constraint("Tangent", 9, 2, 10, 1),
    Sketcher.Constraint("Tangent", 10, 2, 11, 1),
    Sketcher.Constraint("Tangent", 11, 2, 8, 1),
    Sketcher.Constraint("Tangent", 12, 2, 13, 1),
    Sketcher.Constraint("Tangent", 13, 2, 14, 1),
    Sketcher.Constraint("Tangent", 14, 2, 15, 1),
    Sketcher.Constraint("Tangent", 15, 2, 12, 1),
    Sketcher.Constraint("Horizontal", 0),
    Sketcher.Constraint("Horizontal", 2),
    Sketcher.Constraint("Horizontal", 4),
    Sketcher.Constraint("Horizontal", 6),
    Sketcher.Constraint("Horizontal", 8),
    Sketcher.Constraint("Horizontal", 10),
    Sketcher.Constraint("Horizontal", 12),
    Sketcher.Constraint("Horizontal", 14),
    Sketcher.Constraint("Equal", 3, 5),
    Sketcher.Constraint("Equal", 7, 9),
    Sketcher.Constraint("Equal", 11, 13),
    Sketcher.Constraint("Horizontal", 3, 3, 5, 3),
    Sketcher.Constraint("Horizontal", 11, 3, 13, 3),
    Sketcher.Constraint("Vertical", 5, 3, 9, 3),
    Sketcher.Constraint("Vertical", 7, 3, 11, 3),
    Sketcher.Constraint("Vertical", 1, 3, 13, 3),
    Sketcher.Constraint("Vertical", 3, 3, 15, 3),
    Sketcher.Constraint("Equal", 2, 4),
    Sketcher.Constraint("Radius", 1, 5.5),
    Sketcher.Constraint("DistanceX", 0, 1, 0, 2, 3.0),
    Sketcher.Constraint("DistanceY", -1, 1, 0, 2, 668.0),
    Sketcher.Constraint("DistanceY", -1, 1, 8, 2, 562.0),
    Sketcher.Constraint("DistanceX", 5, 3, 3, 3, 75.0),
    Sketcher.Constraint("DistanceX", -1, 1, 1, 3, 155.5),
])
pocket1 = doc.addObject("PartDesign::Pocket", "Pocket")
body.addObject(pocket1)
pocket1.Profile = sketch20
pocket1.Type = "ThroughAll"
doc.recompute()

linearpattern6 = doc.addObject("PartDesign::LinearPattern", "LinearPattern005")
body.addObject(linearpattern6)
linearpattern6.Originals = [pocket1]
linearpattern6.Direction = (doc.X_Axis, [""])
linearpattern6.Mode = "offset"
linearpattern6.Offset = 520
linearpattern6.Occurrences = 2
body.Tip = linearpattern6

doc.recompute()
